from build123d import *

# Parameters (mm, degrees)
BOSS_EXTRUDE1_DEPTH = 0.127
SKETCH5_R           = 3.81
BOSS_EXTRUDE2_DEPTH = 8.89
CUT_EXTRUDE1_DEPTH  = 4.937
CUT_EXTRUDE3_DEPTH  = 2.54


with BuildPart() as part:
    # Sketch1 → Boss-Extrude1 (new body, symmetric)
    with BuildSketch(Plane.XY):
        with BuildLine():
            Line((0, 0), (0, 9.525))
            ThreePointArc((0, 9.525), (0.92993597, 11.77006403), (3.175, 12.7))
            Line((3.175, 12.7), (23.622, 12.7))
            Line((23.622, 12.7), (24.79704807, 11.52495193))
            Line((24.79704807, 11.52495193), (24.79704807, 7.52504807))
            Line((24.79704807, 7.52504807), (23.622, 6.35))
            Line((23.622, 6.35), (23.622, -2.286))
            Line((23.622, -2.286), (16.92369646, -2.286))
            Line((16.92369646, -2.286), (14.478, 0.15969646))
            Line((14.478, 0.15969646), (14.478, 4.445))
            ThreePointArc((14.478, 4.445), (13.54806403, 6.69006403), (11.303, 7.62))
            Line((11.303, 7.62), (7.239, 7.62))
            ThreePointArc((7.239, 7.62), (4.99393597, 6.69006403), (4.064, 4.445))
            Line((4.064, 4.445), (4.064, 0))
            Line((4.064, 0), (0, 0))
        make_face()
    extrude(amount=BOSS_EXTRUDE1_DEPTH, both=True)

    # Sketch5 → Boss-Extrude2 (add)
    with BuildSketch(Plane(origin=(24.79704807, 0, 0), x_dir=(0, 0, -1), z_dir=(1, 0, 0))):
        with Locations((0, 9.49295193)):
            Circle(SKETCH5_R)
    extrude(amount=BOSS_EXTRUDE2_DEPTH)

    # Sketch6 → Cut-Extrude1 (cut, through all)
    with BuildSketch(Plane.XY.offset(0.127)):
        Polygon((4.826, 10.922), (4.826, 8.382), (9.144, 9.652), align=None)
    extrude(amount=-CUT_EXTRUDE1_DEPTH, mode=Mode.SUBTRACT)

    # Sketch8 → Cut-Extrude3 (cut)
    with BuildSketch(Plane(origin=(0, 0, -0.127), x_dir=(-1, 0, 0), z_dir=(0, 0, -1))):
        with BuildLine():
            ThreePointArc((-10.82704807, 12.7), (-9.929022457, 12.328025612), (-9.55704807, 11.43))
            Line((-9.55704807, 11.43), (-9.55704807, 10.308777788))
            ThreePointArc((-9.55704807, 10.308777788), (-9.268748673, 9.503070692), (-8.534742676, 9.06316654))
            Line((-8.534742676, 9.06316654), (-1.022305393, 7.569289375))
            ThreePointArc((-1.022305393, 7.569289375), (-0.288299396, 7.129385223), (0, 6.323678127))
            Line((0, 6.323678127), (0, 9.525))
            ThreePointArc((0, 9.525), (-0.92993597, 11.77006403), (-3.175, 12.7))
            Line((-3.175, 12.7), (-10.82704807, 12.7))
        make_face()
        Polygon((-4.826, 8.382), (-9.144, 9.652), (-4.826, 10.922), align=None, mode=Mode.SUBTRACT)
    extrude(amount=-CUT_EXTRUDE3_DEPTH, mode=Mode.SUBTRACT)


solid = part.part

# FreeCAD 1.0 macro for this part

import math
import FreeCAD as App
import Part
import Sketcher
Q = App.Units.Quantity

doc = App.newDocument("Part")
body = doc.addObject("PartDesign::Body", "Body")

# Sketch on XY plane
sketch1 = body.newObject("Sketcher::SketchObject", "Sketch")
sketch1.AttachmentSupport = (doc.getObject("XY_Plane"), [""])
sketch1.MapMode = "FlatFace"
sketch1.addGeometry([
    Part.LineSegment(App.Vector(0, 9.5, 0), App.Vector(0, 0, 0)),  # 0
    Part.LineSegment(App.Vector(0, 0, 0), App.Vector(4.1, 0, 0)),  # 1
    Part.LineSegment(App.Vector(4.1, 0, 0), App.Vector(4.1, 4.4, 0)),  # 2
    Part.ArcOfCircle(Part.Circle(App.Vector(7.2, 4.4, 0), App.Vector(0, 0, 1), 3.2), math.radians(90), math.radians(180)),  # 3
    Part.LineSegment(App.Vector(7.2, 7.6, 0), App.Vector(11.3, 7.6, 0)),  # 4
    Part.ArcOfCircle(Part.Circle(App.Vector(11.3, 4.4, 0), App.Vector(0, 0, 1), 3.2), math.radians(0), math.radians(90)),  # 5
    Part.LineSegment(App.Vector(14.5, 4.4, 0), App.Vector(14.5, 0.2, 0)),  # 6
    Part.LineSegment(App.Vector(14.5, 0.2, 0), App.Vector(16.9, -2.3, 0)),  # 7
    Part.LineSegment(App.Vector(16.9, -2.3, 0), App.Vector(23.6, -2.3, 0)),  # 8
    Part.LineSegment(App.Vector(23.6, -2.3, 0), App.Vector(23.6, 6.3, 0)),  # 9
    Part.LineSegment(App.Vector(23.6, 6.3, 0), App.Vector(24.8, 7.5, 0)),  # 10
    Part.LineSegment(App.Vector(24.8, 7.5, 0), App.Vector(24.8, 11.5, 0)),  # 11
    Part.LineSegment(App.Vector(24.8, 11.5, 0), App.Vector(23.6, 12.7, 0)),  # 12
    Part.LineSegment(App.Vector(23.6, 12.7, 0), App.Vector(3.2, 12.7, 0)),  # 13
    Part.ArcOfCircle(Part.Circle(App.Vector(3.2, 9.5, 0), App.Vector(0, 0, 1), 3.2), math.radians(90), math.radians(180)),  # 14
], False)
sketch1.addConstraint([
    Sketcher.Constraint("Coincident", 0, 2, 1, 1),
    Sketcher.Constraint("Coincident", 1, 2, 2, 1),
    Sketcher.Constraint("Tangent", 2, 2, 3, 2),
    Sketcher.Constraint("Tangent", 3, 1, 4, 1),
    Sketcher.Constraint("Tangent", 4, 2, 5, 2),
    Sketcher.Constraint("Tangent", 5, 1, 6, 1),
    Sketcher.Constraint("Coincident", 6, 2, 7, 1),
    Sketcher.Constraint("Coincident", 7, 2, 8, 1),
    Sketcher.Constraint("Coincident", 8, 2, 9, 1),
    Sketcher.Constraint("Coincident", 9, 2, 10, 1),
    Sketcher.Constraint("Coincident", 10, 2, 11, 1),
    Sketcher.Constraint("Coincident", 11, 2, 12, 1),
    Sketcher.Constraint("Coincident", 12, 2, 13, 1),
    Sketcher.Constraint("Tangent", 13, 2, 14, 1),
    Sketcher.Constraint("Tangent", 14, 2, 0, 1),
    Sketcher.Constraint("Vertical", 0),
    Sketcher.Constraint("Horizontal", 1),
    Sketcher.Constraint("Vertical", 2),
    Sketcher.Constraint("Horizontal", 4),
    Sketcher.Constraint("Vertical", 6),
    Sketcher.Constraint("Horizontal", 8),
    Sketcher.Constraint("Vertical", 9),
    Sketcher.Constraint("Vertical", 11),
    Sketcher.Constraint("Horizontal", 13),
    Sketcher.Constraint("Coincident", 0, 2, -1, 1),
    Sketcher.Constraint("Equal", 3, 5),
    Sketcher.Constraint("Equal", 5, 14),
    Sketcher.Constraint("Perpendicular", 7, 10),
    Sketcher.Constraint("Perpendicular", 10, 12),
    Sketcher.Constraint("Vertical", 9, 2, 12, 2),
    Sketcher.Constraint("Equal", 1, 4),
    Sketcher.Constraint("Equal", 10, 12),
    Sketcher.Constraint("Radius", 3, Q("0.125 in")),
    Sketcher.Constraint("DistanceX", 1, 1, 1, 2, Q("0.16 in")),
    Sketcher.Constraint("DistanceY", 9, 1, 9, 2, Q("0.34 in")),
    Sketcher.Constraint("DistanceY", -1, 1, 3, 1, Q("0.3 in")),
    Sketcher.Constraint("DistanceY", -1, 1, 12, 2, Q("0.5 in")),
    Sketcher.Constraint("DistanceX", 13, 2, 13, 1, Q("0.805 in")),
    Sketcher.Constraint("DistanceY", 7, 2, -1, 1, Q("0.09 in")),
    Sketcher.Constraint("Distance", 10, 1.661769),
    Sketcher.Constraint("DistanceX", 8, 1, 8, 2, 6.698304),
])
pad1 = body.newObject("PartDesign::Pad", "Pad")
pad1.Profile = sketch1
pad1.Length = Q("0.01 in")
pad1.Midplane = True

# Sketch on YZ plane
sketch2 = body.newObject("Sketcher::SketchObject", "Sketch001")
sketch2.AttachmentSupport = (doc.getObject("YZ_Plane"), [""])
sketch2.MapMode = "FlatFace"
sketch2.AttachmentOffset = App.Placement(App.Vector(0, 0, 24.797048), App.Rotation())
sketch2.addGeometry(Part.Circle(App.Vector(9.5, 0, 0), App.Vector(0, 0, 1), 3.8), False)
sketch2.addConstraint([
    Sketcher.Constraint("PointOnObject", 0, 3, -1),
    Sketcher.Constraint("Diameter", 0, Q("0.3 in")),
    Sketcher.Constraint("DistanceX", -1, 1, 0, 3, 9.492952),
])
pad2 = body.newObject("PartDesign::Pad", "Pad001")
pad2.Profile = sketch2
pad2.Length = Q("0.35 in")

# Sketch on XY plane
sketch3 = body.newObject("Sketcher::SketchObject", "Sketch002")
sketch3.AttachmentSupport = (doc.getObject("XY_Plane"), [""])
sketch3.MapMode = "FlatFace"
sketch3.AttachmentOffset = App.Placement(App.Vector(0, 0, 0.005 * 25.4), App.Rotation())
sketch3.addGeometry([
    Part.LineSegment(App.Vector(4.8, 10.9, 0), App.Vector(4.8, 8.4, 0)),
    Part.LineSegment(App.Vector(4.8, 8.4, 0), App.Vector(9.1, 9.7, 0)),
    Part.LineSegment(App.Vector(9.1, 9.7, 0), App.Vector(4.8, 10.9, 0)),
], False)
sketch3.addConstraint([
    Sketcher.Constraint("Coincident", 0, 2, 1, 1),
    Sketcher.Constraint("Coincident", 1, 2, 2, 1),
    Sketcher.Constraint("Coincident", 2, 2, 0, 1),
    Sketcher.Constraint("Vertical", 0),
    Sketcher.Constraint("Equal", 1, 2),
    Sketcher.Constraint("DistanceY", 0, 2, 0, 1, Q("0.1 in")),
    Sketcher.Constraint("DistanceX", -1, 1, 0, 2, Q("0.19 in")),
    Sketcher.Constraint("DistanceY", -1, 1, 0, 2, Q("0.33 in")),
    Sketcher.Constraint("DistanceX", -1, 1, 1, 2, Q("0.36 in")),
])
pocket1 = body.newObject("PartDesign::Pocket", "Pocket")
pocket1.Profile = sketch3
pocket1.Type = "ThroughAll"

# Sketch on XY plane
sketch4 = body.newObject("Sketcher::SketchObject", "Sketch003")
sketch4.AttachmentSupport = (doc.getObject("XY_Plane"), [""])
sketch4.MapMode = "FlatFace"
sketch4.AttachmentOffset = App.Placement(App.Vector(0, 0, -0.005 * 25.4), App.Rotation())
sketch4.addGeometry([
    Part.ArcOfCircle(Part.Circle(App.Vector(10.8, 11.4, 0), App.Vector(0, 0, 1), 1.3), math.radians(90), math.radians(180)),  # 0
    Part.LineSegment(App.Vector(9.6, 11.4, 0), App.Vector(9.6, 10.3, 0)),  # 1
    Part.ArcOfCircle(Part.Circle(App.Vector(8.3, 10.3, 0), App.Vector(0, 0, 1), 1.3), math.radians(-79), math.radians(0)),  # 2
    Part.LineSegment(App.Vector(8.5, 9.1, 0), App.Vector(1, 7.6, 0)),  # 3
    Part.ArcOfCircle(Part.Circle(App.Vector(1.3, 6.3, 0), App.Vector(0, 0, 1), 1.3), math.radians(101), math.radians(180)),  # 4
    Part.LineSegment(App.Vector(0, 6.3, 0), App.Vector(0, 9.5, 0)),  # 5
    Part.ArcOfCircle(Part.Circle(App.Vector(3.2, 9.5, 0), App.Vector(0, 0, 1), 3.2), math.radians(90), math.radians(180)),  # 6
    Part.LineSegment(App.Vector(3.2, 12.7, 0), App.Vector(10.8, 12.7, 0)),  # 7
    Part.LineSegment(App.Vector(4.8, 10.9, 0), App.Vector(4.8, 8.4, 0)),  # 8
    Part.LineSegment(App.Vector(4.8, 8.4, 0), App.Vector(9.1, 9.7, 0)),  # 9
    Part.LineSegment(App.Vector(9.1, 9.7, 0), App.Vector(4.8, 10.9, 0)),  # 10
], False)
sketch4.addConstraint([
    Sketcher.Constraint("Tangent", 0, 2, 1, 1),
    Sketcher.Constraint("Tangent", 1, 2, 2, 2),
    Sketcher.Constraint("Tangent", 2, 1, 3, 1),
    Sketcher.Constraint("Tangent", 3, 2, 4, 1),
    Sketcher.Constraint("Tangent", 4, 2, 5, 1),
    Sketcher.Constraint("Tangent", 5, 2, 6, 2),
    Sketcher.Constraint("Tangent", 6, 1, 7, 1),
    Sketcher.Constraint("Tangent", 7, 2, 0, 1),
    Sketcher.Constraint("Coincident", 8, 2, 9, 1),
    Sketcher.Constraint("Coincident", 9, 2, 10, 1),
    Sketcher.Constraint("Coincident", 10, 2, 8, 1),
    Sketcher.Constraint("Vertical", 1),
    Sketcher.Constraint("Vertical", 5),
    Sketcher.Constraint("Horizontal", 7),
    Sketcher.Constraint("Vertical", 8),
    Sketcher.Constraint("Equal", 0, 2),
    Sketcher.Constraint("Equal", 2, 4),
    Sketcher.Constraint("PointOnObject", 4, 2, -2),
    Sketcher.Constraint("Equal", 9, 10),
    Sketcher.Constraint("Radius", 0, Q("0.05 in")),
    Sketcher.Constraint("DistanceY", 8, 2, 8, 1, Q("0.1 in")),
    Sketcher.Constraint("Radius", 6, Q("0.125 in")),
    Sketcher.Constraint("DistanceY", -1, 1, 6, 1, Q("0.5 in")),
    Sketcher.Constraint("DistanceX", -1, 1, 8, 2, Q("0.19 in")),
    Sketcher.Constraint("DistanceY", -1, 1, 8, 2, Q("0.33 in")),
    Sketcher.Constraint("DistanceX", -1, 1, 9, 2, Q("0.36 in")),
    Sketcher.Constraint("DistanceX", 7, 1, 7, 2, 7.652048),
    Sketcher.Constraint("DistanceY", 5, 1, 5, 2, 3.201322),
    Sketcher.Constraint("DistanceY", 4, 3, 2, 3, 3.9851),
])
pocket2 = body.newObject("PartDesign::Pocket", "Pocket001")
pocket2.Profile = sketch4
pocket2.Length = Q("0.1 in")
pocket2.Reversed = True

doc.recompute()
